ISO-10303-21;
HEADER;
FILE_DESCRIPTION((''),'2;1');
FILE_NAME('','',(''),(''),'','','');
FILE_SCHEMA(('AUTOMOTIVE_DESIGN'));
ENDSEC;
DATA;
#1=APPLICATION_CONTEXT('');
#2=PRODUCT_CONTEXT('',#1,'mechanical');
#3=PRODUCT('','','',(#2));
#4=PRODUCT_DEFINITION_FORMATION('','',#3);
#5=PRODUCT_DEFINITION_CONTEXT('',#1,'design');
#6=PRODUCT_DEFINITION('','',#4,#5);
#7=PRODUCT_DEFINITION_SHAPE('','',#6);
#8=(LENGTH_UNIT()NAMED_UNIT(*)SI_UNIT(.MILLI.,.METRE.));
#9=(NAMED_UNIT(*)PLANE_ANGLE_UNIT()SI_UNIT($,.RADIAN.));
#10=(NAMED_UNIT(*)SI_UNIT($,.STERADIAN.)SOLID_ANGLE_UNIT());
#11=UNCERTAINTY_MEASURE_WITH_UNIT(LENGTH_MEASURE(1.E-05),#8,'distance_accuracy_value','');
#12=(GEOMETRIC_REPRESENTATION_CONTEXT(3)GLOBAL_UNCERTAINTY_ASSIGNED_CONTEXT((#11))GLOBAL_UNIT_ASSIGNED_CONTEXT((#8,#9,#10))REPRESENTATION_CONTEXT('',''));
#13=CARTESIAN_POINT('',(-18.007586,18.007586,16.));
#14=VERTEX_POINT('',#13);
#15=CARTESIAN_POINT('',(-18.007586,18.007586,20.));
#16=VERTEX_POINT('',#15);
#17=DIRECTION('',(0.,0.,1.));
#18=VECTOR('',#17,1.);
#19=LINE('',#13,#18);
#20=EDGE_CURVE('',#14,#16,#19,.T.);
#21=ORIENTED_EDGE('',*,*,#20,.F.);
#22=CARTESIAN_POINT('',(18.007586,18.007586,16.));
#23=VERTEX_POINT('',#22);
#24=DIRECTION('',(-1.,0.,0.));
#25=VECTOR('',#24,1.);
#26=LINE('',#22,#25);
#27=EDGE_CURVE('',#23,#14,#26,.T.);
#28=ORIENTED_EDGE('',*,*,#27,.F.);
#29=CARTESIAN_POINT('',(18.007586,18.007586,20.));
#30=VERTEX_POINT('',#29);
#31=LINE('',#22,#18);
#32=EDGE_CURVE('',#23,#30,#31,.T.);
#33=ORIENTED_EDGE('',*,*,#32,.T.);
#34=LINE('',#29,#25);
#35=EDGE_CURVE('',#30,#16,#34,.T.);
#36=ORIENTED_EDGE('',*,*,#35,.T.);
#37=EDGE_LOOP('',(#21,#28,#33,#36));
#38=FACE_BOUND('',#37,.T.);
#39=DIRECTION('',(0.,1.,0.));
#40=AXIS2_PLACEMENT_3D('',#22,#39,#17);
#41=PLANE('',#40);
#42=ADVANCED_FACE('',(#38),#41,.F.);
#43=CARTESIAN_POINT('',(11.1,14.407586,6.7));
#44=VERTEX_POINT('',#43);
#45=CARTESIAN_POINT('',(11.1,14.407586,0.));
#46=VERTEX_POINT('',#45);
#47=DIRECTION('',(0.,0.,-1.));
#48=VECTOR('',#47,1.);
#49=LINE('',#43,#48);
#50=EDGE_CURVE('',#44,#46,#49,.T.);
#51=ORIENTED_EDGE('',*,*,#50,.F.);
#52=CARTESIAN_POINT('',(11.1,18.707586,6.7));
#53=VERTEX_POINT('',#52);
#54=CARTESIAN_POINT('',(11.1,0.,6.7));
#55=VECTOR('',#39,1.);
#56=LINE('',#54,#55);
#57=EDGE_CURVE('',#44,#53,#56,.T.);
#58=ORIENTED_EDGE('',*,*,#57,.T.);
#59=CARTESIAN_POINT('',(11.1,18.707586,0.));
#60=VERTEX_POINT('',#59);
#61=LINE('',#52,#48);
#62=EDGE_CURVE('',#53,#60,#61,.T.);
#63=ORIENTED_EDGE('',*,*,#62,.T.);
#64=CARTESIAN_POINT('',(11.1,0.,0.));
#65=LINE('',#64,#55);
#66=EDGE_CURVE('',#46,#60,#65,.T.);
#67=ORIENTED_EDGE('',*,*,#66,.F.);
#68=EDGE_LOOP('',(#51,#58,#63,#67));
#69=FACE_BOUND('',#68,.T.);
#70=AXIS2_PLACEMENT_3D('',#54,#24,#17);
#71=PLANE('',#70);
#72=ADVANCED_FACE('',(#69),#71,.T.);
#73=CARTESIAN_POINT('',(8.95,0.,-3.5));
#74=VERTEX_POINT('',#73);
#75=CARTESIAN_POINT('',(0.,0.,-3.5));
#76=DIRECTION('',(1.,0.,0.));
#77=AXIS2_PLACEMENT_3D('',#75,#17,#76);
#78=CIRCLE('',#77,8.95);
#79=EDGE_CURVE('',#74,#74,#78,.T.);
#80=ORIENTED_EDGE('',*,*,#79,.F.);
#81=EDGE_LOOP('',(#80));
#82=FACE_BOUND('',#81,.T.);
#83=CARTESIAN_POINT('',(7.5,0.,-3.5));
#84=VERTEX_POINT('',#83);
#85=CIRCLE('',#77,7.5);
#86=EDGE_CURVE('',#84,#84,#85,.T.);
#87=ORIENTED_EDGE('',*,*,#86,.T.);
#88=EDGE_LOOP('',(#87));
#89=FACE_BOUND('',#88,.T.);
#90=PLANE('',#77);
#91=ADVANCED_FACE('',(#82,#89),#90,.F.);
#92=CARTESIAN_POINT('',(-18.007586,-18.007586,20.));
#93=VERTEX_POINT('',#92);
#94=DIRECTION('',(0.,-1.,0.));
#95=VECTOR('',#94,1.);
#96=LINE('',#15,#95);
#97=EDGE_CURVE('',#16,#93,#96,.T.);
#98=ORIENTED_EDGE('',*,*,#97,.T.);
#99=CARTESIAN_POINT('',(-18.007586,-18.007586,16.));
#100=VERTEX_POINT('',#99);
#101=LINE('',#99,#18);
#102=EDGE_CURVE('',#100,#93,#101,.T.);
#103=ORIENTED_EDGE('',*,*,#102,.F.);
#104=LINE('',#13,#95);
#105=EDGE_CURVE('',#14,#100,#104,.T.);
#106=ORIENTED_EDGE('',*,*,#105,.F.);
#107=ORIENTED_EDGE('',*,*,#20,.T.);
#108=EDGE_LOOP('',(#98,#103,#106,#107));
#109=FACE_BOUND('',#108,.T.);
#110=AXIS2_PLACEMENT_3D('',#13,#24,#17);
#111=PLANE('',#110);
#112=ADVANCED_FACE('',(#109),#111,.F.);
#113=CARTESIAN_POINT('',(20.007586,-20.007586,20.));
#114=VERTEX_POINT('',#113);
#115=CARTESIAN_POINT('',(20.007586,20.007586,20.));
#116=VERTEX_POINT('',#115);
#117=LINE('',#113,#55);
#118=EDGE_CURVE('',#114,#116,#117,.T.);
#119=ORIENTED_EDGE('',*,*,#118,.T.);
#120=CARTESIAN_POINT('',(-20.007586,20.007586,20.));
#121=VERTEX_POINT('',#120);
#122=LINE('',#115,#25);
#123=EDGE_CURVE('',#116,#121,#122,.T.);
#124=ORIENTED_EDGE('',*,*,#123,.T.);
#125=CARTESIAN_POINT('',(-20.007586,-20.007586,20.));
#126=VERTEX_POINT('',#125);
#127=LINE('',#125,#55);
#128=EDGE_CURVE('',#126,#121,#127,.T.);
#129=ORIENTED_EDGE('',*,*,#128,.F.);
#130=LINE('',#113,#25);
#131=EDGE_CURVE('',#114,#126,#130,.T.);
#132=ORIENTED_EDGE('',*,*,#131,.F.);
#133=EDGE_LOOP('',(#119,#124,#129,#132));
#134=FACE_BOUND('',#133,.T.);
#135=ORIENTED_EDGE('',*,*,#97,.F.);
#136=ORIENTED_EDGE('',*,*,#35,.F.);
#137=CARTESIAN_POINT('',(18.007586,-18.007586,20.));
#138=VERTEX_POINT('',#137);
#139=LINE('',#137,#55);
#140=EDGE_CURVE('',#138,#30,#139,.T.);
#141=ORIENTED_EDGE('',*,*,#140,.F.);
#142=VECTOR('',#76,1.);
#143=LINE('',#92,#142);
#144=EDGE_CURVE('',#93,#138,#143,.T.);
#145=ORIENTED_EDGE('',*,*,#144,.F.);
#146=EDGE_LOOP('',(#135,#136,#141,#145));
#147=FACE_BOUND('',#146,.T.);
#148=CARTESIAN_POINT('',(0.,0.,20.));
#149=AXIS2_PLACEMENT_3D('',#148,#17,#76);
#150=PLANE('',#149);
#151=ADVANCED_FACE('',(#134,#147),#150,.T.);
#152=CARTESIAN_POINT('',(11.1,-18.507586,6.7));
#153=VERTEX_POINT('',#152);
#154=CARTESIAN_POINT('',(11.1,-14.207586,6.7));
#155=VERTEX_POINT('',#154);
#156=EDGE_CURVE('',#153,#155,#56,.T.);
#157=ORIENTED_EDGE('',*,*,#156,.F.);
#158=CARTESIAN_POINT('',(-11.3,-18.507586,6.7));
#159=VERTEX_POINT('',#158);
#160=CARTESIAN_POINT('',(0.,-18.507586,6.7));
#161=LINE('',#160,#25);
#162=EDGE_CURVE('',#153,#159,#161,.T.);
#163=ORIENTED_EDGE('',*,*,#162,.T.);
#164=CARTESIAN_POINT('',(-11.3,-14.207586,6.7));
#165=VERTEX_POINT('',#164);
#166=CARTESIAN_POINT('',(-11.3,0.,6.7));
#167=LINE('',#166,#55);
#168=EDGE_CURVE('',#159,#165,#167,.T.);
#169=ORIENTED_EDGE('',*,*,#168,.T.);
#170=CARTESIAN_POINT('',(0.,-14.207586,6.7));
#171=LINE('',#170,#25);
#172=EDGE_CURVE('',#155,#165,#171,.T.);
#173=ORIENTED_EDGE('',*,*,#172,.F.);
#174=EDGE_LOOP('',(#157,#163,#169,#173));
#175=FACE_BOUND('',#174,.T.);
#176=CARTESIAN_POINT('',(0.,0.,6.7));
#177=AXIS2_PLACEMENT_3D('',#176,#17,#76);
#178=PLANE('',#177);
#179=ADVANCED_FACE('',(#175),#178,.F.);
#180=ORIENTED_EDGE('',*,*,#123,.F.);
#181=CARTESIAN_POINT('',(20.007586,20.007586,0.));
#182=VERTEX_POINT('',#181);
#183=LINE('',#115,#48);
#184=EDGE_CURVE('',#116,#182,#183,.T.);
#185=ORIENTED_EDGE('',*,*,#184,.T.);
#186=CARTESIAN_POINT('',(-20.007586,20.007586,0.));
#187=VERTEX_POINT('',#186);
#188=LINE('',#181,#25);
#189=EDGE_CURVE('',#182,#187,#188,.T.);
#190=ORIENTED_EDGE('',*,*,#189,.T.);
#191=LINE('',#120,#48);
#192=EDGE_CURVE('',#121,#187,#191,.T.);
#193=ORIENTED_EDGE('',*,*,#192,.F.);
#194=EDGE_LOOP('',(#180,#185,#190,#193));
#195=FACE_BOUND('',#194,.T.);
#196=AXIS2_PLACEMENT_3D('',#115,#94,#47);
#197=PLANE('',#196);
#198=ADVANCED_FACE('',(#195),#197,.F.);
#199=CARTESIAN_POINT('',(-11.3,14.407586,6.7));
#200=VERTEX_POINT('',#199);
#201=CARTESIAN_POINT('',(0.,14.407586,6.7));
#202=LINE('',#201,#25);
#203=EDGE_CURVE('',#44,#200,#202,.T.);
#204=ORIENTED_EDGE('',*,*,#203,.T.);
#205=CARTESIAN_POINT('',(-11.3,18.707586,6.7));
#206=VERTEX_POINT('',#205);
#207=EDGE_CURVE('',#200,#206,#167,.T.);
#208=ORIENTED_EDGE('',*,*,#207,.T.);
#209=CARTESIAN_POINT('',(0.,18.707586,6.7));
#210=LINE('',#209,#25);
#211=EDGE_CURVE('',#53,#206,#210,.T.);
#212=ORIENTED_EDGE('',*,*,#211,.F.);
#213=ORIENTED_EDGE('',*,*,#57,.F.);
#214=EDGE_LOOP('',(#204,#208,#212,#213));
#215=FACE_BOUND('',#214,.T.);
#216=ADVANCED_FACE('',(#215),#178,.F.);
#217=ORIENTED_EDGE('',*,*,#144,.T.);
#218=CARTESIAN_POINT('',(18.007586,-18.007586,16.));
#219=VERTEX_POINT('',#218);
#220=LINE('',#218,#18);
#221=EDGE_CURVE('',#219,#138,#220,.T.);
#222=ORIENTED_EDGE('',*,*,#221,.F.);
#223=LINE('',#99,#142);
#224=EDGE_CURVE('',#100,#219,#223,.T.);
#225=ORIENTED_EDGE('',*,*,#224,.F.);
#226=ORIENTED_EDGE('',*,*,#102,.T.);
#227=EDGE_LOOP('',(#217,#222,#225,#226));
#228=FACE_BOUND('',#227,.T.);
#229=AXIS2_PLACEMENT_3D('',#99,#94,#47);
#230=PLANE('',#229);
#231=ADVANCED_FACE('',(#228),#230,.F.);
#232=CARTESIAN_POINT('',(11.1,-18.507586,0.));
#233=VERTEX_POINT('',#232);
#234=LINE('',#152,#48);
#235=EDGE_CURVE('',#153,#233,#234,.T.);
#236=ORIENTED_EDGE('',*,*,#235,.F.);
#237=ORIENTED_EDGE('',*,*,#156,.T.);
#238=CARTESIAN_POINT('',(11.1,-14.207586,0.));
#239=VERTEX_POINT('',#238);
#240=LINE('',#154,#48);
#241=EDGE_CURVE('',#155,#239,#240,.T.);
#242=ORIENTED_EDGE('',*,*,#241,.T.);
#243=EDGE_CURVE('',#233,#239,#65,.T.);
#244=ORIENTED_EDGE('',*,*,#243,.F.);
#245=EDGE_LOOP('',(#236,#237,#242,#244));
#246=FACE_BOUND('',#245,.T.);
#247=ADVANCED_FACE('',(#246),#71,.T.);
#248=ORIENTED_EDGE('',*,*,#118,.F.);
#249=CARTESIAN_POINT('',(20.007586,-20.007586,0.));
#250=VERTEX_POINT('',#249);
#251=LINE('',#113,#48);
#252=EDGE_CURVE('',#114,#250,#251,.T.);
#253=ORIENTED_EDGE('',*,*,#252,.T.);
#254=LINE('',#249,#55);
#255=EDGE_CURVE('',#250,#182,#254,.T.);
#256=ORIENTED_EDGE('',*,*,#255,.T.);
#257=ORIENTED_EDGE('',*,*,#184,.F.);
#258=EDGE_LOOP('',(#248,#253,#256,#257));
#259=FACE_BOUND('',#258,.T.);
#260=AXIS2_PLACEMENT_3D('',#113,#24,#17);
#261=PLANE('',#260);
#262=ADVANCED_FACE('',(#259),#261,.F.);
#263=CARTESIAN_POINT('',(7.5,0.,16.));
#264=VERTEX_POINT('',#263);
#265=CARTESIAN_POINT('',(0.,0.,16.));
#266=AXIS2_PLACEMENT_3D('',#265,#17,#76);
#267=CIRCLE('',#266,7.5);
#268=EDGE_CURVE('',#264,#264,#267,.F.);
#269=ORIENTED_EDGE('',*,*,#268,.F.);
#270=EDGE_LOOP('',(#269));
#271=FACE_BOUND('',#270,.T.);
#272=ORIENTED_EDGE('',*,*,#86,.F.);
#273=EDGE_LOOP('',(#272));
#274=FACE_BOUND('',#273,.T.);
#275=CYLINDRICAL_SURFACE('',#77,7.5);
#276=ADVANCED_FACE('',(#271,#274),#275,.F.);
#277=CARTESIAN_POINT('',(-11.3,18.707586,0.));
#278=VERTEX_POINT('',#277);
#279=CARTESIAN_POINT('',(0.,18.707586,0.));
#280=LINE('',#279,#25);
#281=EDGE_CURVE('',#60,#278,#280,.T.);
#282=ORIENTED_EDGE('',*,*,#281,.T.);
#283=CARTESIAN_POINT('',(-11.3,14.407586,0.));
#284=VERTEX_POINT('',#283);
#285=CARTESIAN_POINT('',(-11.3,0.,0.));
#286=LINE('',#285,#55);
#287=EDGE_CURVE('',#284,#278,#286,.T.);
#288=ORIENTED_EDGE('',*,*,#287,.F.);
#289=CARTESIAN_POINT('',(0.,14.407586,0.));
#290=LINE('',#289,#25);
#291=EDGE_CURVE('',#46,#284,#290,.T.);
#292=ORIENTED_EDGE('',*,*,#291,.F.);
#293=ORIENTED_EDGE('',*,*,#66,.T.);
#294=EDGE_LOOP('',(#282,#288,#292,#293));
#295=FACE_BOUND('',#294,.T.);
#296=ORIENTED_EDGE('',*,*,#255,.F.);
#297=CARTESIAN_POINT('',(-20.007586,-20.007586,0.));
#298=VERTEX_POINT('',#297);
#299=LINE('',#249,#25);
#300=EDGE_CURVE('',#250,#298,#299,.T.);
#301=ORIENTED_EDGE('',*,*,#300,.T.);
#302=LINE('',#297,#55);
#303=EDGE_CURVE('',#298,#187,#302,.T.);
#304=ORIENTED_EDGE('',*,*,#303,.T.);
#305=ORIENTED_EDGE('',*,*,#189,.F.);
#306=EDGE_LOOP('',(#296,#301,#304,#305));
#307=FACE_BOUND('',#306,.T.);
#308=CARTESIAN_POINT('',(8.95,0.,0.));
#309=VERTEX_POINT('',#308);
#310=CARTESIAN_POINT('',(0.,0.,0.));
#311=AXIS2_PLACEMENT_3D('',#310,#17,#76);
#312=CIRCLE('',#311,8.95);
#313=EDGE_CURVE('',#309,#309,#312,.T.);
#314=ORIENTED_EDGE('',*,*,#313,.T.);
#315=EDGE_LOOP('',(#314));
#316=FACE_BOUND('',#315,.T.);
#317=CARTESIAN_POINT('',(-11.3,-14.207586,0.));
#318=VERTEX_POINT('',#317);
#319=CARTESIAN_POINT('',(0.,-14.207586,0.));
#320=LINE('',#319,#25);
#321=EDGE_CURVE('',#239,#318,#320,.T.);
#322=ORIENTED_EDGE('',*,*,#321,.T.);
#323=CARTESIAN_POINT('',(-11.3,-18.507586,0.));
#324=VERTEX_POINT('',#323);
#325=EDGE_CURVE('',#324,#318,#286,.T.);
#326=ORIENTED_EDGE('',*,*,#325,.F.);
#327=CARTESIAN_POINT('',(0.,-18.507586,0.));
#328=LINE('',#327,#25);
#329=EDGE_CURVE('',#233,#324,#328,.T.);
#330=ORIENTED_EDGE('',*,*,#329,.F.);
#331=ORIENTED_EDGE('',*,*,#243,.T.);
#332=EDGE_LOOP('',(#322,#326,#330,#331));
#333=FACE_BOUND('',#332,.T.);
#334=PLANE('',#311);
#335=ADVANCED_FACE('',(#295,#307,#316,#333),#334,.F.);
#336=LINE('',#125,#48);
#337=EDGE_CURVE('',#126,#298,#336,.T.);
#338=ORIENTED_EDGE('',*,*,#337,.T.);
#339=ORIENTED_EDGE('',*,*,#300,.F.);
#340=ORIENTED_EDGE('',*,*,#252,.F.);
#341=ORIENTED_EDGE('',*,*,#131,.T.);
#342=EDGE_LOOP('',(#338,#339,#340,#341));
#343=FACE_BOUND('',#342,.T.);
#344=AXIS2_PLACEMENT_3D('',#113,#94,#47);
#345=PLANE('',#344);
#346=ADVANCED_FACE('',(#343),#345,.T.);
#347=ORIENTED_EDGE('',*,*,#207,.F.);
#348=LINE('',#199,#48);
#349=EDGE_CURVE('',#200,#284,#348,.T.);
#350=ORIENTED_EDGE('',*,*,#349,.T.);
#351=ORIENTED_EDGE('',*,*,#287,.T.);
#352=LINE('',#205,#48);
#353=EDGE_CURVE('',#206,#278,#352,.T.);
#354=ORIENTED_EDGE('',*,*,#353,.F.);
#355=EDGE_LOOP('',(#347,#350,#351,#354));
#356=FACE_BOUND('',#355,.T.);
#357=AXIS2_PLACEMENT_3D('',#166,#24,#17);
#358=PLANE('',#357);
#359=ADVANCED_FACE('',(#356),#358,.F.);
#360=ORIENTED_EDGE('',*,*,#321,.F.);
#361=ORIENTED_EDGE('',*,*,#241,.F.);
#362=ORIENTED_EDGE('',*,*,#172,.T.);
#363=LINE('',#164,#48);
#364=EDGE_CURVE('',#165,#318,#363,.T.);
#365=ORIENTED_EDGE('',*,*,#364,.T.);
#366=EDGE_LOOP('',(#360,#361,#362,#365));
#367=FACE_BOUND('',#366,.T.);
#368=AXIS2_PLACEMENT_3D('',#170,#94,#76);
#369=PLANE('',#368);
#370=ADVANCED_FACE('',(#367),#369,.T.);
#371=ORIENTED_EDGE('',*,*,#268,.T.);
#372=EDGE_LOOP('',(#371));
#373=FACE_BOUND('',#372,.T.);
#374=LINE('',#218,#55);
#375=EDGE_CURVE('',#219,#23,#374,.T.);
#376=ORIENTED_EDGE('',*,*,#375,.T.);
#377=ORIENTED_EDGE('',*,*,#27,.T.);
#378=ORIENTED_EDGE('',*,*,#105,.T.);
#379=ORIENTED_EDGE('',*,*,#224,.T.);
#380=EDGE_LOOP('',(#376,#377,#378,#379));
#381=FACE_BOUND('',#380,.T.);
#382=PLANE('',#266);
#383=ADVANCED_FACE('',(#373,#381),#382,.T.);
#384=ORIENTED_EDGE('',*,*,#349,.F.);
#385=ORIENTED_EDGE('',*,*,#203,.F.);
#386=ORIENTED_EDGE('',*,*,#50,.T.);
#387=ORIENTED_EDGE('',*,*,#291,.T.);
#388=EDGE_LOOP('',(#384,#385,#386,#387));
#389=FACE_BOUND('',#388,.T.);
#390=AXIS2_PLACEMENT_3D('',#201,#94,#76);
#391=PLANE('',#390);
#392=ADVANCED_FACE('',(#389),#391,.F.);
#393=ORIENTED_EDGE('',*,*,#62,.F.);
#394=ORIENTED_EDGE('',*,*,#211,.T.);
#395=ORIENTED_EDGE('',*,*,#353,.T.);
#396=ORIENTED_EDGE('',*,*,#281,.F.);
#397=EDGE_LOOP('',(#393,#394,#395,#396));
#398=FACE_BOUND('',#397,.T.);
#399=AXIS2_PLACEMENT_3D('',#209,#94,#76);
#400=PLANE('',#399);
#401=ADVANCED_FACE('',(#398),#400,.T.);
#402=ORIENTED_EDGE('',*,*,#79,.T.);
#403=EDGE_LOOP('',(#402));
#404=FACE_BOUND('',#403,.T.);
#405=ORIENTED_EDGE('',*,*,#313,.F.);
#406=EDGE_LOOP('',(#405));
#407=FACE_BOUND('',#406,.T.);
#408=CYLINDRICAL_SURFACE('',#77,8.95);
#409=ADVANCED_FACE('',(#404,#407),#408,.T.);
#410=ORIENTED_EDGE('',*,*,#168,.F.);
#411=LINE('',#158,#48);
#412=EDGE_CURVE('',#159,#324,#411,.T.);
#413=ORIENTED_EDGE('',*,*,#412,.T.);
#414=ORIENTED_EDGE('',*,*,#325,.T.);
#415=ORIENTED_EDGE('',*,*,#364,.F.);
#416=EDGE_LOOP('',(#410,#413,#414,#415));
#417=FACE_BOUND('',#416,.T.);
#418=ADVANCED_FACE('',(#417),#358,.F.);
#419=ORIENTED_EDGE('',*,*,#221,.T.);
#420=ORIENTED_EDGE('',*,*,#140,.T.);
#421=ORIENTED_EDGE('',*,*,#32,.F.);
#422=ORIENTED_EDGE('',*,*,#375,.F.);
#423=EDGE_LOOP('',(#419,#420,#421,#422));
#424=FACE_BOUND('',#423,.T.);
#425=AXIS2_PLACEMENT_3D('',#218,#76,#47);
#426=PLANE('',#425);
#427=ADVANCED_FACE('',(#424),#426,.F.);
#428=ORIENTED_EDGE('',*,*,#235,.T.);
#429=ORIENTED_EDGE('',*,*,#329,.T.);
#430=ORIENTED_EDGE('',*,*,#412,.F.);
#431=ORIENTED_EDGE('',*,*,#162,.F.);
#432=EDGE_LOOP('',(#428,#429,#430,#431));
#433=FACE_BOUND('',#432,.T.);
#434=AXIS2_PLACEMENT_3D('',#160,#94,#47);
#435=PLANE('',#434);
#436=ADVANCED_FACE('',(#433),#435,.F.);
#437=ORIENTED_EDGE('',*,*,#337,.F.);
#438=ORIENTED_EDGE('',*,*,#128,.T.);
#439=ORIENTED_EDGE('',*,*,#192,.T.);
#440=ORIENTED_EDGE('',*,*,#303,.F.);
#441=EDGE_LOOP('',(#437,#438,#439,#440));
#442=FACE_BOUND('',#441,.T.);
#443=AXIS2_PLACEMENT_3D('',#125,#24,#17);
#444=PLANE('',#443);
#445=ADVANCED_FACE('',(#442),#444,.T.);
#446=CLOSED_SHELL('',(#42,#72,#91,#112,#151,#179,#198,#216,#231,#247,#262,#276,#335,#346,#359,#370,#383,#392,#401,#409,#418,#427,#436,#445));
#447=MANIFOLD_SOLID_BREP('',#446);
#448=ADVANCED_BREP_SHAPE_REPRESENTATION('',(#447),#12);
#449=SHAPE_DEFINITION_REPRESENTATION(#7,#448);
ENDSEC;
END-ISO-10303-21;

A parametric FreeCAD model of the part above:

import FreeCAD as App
import Part
import Sketcher

doc = App.newDocument("Part")
body = doc.addObject("PartDesign::Body", "Body")

sketch1 = body.newObject("Sketcher::SketchObject", "Sketch")
sketch1.AttachmentSupport = (doc.getObject("XY_Plane"), [""])
sketch1.MapMode = "FlatFace"
sketch1.addGeometry([
    Part.LineSegment(App.Vector(-20, 20, 0), App.Vector(-20, -20, 0)),
    Part.LineSegment(App.Vector(-20, -20, 0), App.Vector(20, -20, 0)),
    Part.LineSegment(App.Vector(20, -20, 0), App.Vector(20, 20, 0)),
    Part.LineSegment(App.Vector(20, 20, 0), App.Vector(-20, 20, 0)),
], False)
sketch1.addConstraint([
    Sketcher.Constraint("Coincident", 0, 2, 1, 1),
    Sketcher.Constraint("Coincident", 1, 2, 2, 1),
    Sketcher.Constraint("Coincident", 2, 2, 3, 1),
    Sketcher.Constraint("Coincident", 3, 2, 0, 1),
    Sketcher.Constraint("Vertical", 0),
    Sketcher.Constraint("Horizontal", 1),
    Sketcher.Constraint("Vertical", 2),
    Sketcher.Constraint("Horizontal", 3),
    Sketcher.Constraint("Symmetric", 0, 2, 2, 2, -1, 1),
    Sketcher.Constraint("Equal", 3, 0),
    Sketcher.Constraint("DistanceX", 1, 1, 1, 2, 40.015173),
])
pad1 = body.newObject("PartDesign::Pad", "Pad")
pad1.Profile = sketch1
pad1.Length = 20

sketch2 = body.newObject("Sketcher::SketchObject", "Sketch001")
sketch2.AttachmentSupport = (doc.getObject("XY_Plane"), [""])
sketch2.MapMode = "FlatFace"
sketch2.addGeometry([
    Part.Circle(App.Vector(0, 0, 0), App.Vector(0, 0, 1), 9),
    Part.Circle(App.Vector(0, 0, 0), App.Vector(0, 0, 1), 8),
], False)
sketch2.addConstraint([
    Sketcher.Constraint("Coincident", 0, 3, -1, 1),
    Sketcher.Constraint("Coincident", 1, 3, -1, 1),
    Sketcher.Constraint("Diameter", 1, 15.0),
    Sketcher.Constraint("Diameter", 0, 17.9),
])
pad2 = body.newObject("PartDesign::Pad", "Pad001")
pad2.Profile = sketch2
pad2.Length = 3.5
pad2.Reversed = True

sketch3 = body.newObject("Sketcher::SketchObject", "Sketch002")
sketch3.AttachmentSupport = (doc.getObject("XY_Plane"), [""])
sketch3.MapMode = "FlatFace"
sketch3.addGeometry(Part.Circle(App.Vector(0, 0, 0), App.Vector(0, 0, 1), 8), False)
sketch3.addConstraint([
    Sketcher.Constraint("Coincident", 0, 3, -1, 1),
    Sketcher.Constraint("Diameter", 0, 15.0),
])
pocket1 = body.newObject("PartDesign::Pocket", "Pocket")
pocket1.Profile = sketch3
pocket1.Type = "ThroughAll"
pocket1.Reversed = True

sketch4 = body.newObject("Sketcher::SketchObject", "Sketch003")
sketch4.AttachmentSupport = (doc.getObject("XY_Plane"), [""])
sketch4.MapMode = "FlatFace"
sketch4.addGeometry([
    Part.LineSegment(App.Vector(-11.3, -14.2, 0), App.Vector(-11.3, -18.5, 0)),
    Part.LineSegment(App.Vector(-11.3, -18.5, 0), App.Vector(11.1, -18.5, 0)),
    Part.LineSegment(App.Vector(11.1, -18.5, 0), App.Vector(11.1, -14.2, 0)),
    Part.LineSegment(App.Vector(11.1, -14.2, 0), App.Vector(-11.3, -14.2, 0)),
    Part.LineSegment(App.Vector(-11.3, 18.7, 0), App.Vector(-11.3, 14.4, 0)),
    Part.LineSegment(App.Vector(-11.3, 14.4, 0), App.Vector(11.1, 14.4, 0)),
    Part.LineSegment(App.Vector(11.1, 14.4, 0), App.Vector(11.1, 18.7, 0)),
    Part.LineSegment(App.Vector(11.1, 18.7, 0), App.Vector(-11.3, 18.7, 0)),
], False)
sketch4.addConstraint([
    Sketcher.Constraint("Coincident", 0, 2, 1, 1),
    Sketcher.Constraint("Coincident", 1, 2, 2, 1),
    Sketcher.Constraint("Coincident", 2, 2, 3, 1),
    Sketcher.Constraint("Coincident", 3, 2, 0, 1),
    Sketcher.Constraint("Coincident", 4, 2, 5, 1),
    Sketcher.Constraint("Coincident", 5, 2, 6, 1),
    Sketcher.Constraint("Coincident", 6, 2, 7, 1),
    Sketcher.Constraint("Coincident", 7, 2, 4, 1),
    Sketcher.Constraint("Vertical", 0),
    Sketcher.Constraint("Horizontal", 1),
    Sketcher.Constraint("Vertical", 2),
    Sketcher.Constraint("Horizontal", 3),
    Sketcher.Constraint("Vertical", 4),
    Sketcher.Constraint("Horizontal", 5),
    Sketcher.Constraint("Vertical", 6),
    Sketcher.Constraint("Horizontal", 7),
    Sketcher.Constraint("Vertical", 3, 2, 4, 2),
    Sketcher.Constraint("Vertical", 2, 2, 5, 2),
    Sketcher.Constraint("Equal", 2, 4),
    Sketcher.Constraint("DistanceX", 1, 1, 1, 2, 22.4),
    Sketcher.Constraint("DistanceY", 0, 2, 0, 1, 4.3),
    Sketcher.Constraint("DistanceX", 0, 2, -1, 1, 11.3),
    Sketcher.Constraint("DistanceY", 0, 2, -1, 1, 18.507586),
    Sketcher.Constraint("DistanceY", -1, 1, 4, 2, 14.407586),
])
pocket2 = body.newObject("PartDesign::Pocket", "Pocket001")
pocket2.Profile = sketch4
pocket2.Length = 6.7
pocket2.Reversed = True

sketch5 = body.newObject("Sketcher::SketchObject", "Sketch004")
sketch5.AttachmentSupport = (doc.getObject("XY_Plane"), [""])
sketch5.MapMode = "FlatFace"
sketch5.AttachmentOffset = App.Placement(App.Vector(0, 0, 20), App.Rotation())
sketch5.addGeometry([
    Part.LineSegment(App.Vector(-18, 18, 0), App.Vector(-18, -18, 0)),
    Part.LineSegment(App.Vector(-18, -18, 0), App.Vector(18, -18, 0)),
    Part.LineSegment(App.Vector(18, -18, 0), App.Vector(18, 18, 0)),
    Part.LineSegment(App.Vector(18, 18, 0), App.Vector(-18, 18, 0)),
], False)
sketch5.addConstraint([
    Sketcher.Constraint("Coincident", 0, 2, 1, 1),
    Sketcher.Constraint("Coincident", 1, 2, 2, 1),
    Sketcher.Constraint("Coincident", 2, 2, 3, 1),
    Sketcher.Constraint("Coincident", 3, 2, 0, 1),
    Sketcher.Constraint("Vertical", 0),
    Sketcher.Constraint("Horizontal", 1),
    Sketcher.Constraint("Vertical", 2),
    Sketcher.Constraint("Horizontal", 3),
    Sketcher.Constraint("Symmetric", 0, 2, 2, 2, -1, 1),
    Sketcher.Constraint("Equal", 3, 0),
    Sketcher.Constraint("DistanceX", 1, 1, 1, 2, 36.015173),
])
pocket3 = body.newObject("PartDesign::Pocket", "Pocket002")
pocket3.Profile = sketch5
pocket3.Length = 4

doc.recompute()
